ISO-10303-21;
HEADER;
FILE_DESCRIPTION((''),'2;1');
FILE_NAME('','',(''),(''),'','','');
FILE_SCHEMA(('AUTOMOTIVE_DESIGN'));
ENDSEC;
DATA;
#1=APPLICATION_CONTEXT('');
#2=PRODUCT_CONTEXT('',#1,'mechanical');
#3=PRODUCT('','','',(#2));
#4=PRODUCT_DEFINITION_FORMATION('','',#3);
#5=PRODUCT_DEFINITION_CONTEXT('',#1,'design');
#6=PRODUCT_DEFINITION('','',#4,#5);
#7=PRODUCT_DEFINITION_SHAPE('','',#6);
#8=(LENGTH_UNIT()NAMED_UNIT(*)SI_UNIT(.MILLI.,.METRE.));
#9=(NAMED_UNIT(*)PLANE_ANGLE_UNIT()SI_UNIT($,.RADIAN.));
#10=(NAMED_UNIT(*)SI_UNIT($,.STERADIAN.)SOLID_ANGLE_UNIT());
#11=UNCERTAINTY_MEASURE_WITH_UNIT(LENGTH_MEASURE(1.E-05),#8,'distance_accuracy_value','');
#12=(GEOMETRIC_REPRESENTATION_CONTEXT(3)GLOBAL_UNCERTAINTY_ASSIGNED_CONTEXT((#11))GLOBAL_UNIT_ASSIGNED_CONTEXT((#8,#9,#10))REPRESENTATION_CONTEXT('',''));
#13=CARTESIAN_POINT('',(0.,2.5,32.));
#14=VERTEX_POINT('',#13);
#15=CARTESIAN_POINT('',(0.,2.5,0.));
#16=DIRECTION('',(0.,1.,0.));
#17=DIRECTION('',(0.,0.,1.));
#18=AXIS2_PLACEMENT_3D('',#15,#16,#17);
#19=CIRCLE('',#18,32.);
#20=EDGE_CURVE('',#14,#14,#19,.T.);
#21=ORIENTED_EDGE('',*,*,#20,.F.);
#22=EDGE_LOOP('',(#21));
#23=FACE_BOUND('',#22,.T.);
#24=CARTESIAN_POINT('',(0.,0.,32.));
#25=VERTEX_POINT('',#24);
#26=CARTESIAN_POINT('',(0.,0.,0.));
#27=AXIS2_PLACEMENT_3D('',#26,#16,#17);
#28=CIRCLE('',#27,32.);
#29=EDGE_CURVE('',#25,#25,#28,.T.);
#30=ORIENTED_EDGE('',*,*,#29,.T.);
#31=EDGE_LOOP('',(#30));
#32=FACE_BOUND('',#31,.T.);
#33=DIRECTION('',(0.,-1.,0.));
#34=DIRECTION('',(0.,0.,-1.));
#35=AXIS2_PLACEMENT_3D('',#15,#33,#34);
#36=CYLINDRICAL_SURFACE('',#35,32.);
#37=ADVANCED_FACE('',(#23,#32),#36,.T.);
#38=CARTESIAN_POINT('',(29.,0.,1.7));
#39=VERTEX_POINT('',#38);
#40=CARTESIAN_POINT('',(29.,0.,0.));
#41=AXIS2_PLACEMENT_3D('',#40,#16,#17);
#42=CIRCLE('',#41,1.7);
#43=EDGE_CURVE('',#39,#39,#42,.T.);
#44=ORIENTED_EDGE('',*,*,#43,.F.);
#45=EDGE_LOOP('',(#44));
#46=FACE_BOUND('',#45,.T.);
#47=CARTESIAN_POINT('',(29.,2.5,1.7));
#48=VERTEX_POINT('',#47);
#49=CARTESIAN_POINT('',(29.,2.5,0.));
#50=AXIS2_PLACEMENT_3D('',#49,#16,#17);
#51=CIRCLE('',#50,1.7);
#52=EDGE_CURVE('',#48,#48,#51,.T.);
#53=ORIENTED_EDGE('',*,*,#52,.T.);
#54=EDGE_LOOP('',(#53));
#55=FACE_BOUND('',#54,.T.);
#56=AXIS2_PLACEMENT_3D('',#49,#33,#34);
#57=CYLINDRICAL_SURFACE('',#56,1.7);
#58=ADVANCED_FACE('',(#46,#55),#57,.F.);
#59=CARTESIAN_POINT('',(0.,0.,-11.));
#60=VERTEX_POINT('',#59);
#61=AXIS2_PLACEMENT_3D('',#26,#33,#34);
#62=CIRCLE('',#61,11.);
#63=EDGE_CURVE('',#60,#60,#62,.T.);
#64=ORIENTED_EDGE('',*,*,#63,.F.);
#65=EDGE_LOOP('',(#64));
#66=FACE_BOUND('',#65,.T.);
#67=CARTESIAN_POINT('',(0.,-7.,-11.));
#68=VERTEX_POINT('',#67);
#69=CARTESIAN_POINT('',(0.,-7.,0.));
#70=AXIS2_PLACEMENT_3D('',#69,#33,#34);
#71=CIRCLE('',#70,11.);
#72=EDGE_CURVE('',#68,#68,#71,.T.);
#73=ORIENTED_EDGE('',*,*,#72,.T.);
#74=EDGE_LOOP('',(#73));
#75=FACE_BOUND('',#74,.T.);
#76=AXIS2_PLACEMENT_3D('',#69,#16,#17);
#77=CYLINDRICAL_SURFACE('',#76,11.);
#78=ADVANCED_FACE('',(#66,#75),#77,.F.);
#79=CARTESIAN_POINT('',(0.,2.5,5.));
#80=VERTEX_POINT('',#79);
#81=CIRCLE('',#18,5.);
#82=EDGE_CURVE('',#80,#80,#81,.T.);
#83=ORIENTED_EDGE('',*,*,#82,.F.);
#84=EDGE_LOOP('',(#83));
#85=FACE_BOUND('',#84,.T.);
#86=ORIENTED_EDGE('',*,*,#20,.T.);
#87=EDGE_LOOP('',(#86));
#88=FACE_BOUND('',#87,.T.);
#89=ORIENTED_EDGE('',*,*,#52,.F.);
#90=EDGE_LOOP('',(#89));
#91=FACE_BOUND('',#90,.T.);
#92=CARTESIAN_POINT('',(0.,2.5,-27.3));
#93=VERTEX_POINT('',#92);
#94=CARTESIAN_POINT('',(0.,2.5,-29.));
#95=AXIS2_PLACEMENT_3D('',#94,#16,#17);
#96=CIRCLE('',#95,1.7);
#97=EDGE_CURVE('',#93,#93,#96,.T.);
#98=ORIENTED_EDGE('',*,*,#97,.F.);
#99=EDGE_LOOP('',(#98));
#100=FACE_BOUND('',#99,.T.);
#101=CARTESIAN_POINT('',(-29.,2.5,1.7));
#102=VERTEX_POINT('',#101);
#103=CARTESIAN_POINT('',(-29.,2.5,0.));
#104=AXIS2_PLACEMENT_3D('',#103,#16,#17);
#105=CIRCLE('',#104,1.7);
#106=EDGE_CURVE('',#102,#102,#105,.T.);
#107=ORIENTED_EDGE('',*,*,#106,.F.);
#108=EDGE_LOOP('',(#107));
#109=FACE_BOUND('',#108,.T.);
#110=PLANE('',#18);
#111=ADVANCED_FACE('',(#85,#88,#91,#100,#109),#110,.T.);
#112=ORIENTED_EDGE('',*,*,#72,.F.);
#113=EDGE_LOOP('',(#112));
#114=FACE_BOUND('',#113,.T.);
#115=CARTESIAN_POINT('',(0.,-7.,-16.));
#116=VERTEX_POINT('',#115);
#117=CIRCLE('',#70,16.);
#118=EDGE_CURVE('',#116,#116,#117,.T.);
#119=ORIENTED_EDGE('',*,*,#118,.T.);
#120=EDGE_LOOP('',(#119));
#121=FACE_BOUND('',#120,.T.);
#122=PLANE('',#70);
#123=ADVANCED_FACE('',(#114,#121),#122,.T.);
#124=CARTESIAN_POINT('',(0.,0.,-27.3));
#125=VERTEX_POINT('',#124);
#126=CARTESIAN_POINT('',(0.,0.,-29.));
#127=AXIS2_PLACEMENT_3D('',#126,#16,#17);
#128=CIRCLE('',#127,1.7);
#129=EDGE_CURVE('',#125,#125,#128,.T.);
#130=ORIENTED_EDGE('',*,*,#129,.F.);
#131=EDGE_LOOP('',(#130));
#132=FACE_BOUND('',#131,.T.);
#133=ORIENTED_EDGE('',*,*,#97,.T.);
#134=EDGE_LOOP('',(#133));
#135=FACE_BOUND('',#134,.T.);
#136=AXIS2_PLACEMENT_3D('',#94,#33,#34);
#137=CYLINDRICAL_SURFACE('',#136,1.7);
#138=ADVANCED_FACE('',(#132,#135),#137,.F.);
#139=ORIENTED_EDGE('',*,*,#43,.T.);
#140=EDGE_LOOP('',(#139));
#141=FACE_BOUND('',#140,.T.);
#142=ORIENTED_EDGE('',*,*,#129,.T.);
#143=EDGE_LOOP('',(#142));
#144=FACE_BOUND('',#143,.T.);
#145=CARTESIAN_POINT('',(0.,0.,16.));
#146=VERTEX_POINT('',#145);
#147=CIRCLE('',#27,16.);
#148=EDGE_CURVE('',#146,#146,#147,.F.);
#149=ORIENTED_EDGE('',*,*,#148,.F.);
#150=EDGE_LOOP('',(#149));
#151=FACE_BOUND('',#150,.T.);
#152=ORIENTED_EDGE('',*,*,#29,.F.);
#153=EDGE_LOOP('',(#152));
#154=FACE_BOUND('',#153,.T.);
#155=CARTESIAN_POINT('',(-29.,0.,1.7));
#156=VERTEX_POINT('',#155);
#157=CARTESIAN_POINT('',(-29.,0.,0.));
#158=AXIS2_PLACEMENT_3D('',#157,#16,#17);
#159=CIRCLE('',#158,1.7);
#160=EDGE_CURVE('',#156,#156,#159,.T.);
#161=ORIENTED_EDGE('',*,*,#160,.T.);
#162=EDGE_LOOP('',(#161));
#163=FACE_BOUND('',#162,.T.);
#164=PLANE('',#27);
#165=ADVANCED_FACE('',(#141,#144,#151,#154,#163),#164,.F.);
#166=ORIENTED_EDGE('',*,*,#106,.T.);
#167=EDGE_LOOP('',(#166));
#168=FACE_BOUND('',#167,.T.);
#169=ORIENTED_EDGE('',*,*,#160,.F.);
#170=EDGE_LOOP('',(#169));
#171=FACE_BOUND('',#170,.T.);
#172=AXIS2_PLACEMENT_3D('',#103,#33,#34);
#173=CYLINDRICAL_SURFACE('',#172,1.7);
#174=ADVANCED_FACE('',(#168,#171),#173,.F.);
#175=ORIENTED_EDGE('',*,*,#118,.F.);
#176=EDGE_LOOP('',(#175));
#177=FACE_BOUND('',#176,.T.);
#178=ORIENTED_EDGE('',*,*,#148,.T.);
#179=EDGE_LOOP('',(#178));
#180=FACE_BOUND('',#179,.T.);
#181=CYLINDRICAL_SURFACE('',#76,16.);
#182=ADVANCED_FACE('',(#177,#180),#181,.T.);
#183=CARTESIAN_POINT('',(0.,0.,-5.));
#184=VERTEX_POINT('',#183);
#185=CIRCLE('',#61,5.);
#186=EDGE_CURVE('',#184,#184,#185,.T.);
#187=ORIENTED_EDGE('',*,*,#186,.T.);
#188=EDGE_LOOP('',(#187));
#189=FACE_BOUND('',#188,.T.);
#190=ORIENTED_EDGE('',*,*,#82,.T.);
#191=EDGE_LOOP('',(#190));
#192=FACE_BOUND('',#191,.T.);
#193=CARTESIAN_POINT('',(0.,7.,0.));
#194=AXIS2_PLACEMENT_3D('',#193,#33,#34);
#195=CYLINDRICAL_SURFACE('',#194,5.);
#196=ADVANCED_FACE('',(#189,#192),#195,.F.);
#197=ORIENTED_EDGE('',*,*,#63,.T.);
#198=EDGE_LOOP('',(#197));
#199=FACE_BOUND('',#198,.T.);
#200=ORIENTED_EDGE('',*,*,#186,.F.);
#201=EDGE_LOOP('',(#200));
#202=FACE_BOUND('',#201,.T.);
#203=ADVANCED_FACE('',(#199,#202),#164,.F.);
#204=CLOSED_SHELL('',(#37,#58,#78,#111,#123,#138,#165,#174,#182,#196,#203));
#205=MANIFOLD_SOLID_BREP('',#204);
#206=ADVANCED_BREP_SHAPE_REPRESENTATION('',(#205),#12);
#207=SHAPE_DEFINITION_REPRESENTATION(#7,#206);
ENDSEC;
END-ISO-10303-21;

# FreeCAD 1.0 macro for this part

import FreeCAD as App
import Part
import Sketcher

V = App.Vector

doc = App.newDocument("Part")
body = doc.addObject("PartDesign::Body", "Body")

sketch1 = body.newObject("Sketcher::SketchObject", "Sketch")
sketch1.AttachmentSupport = (doc.getObject("XZ_Plane"), [""])
sketch1.MapMode = "FlatFace"
sketch1.addGeometry([
    Part.Circle(V(0, 0, 0), V(0, 0, 1), 32),
    Part.Circle(V(0, -29, 0), V(0, 0, 1), 1.7),
    Part.Circle(V(-29, 0, 0), V(0, 0, 1), 1.7),
    Part.Circle(V(29, 0, 0), V(0, 0, 1), 1.7),
], False)
sketch1.addConstraint([
    Sketcher.Constraint("Coincident", 0, 3, -1, 1),
    Sketcher.Constraint("Equal", 1, 2),
    Sketcher.Constraint("Equal", 2, 3),
    Sketcher.Constraint("Symmetric", 2, 3, 3, 3, -1, 1),
    Sketcher.Constraint("PointOnObject", 1, 3, -2),
    Sketcher.Constraint("PointOnObject", 2, 3, -1),
    Sketcher.Constraint("Diameter", 0, 64.0),
    Sketcher.Constraint("Diameter", 1, 3.4),
    Sketcher.Constraint("DistanceY", 1, 3, -1, 1, 29.0),
    Sketcher.Constraint("DistanceX", 2, 3, -1, 1, 29.0),
])
pad1 = body.newObject("PartDesign::Pad", "Pad")
pad1.Profile = sketch1
pad1.Length = 2.5
pad1.Reversed = True

sketch2 = body.newObject("Sketcher::SketchObject", "Sketch001")
sketch2.AttachmentSupport = (doc.getObject("XZ_Plane"), [""])
sketch2.MapMode = "FlatFace"
sketch2.addGeometry([
    Part.Circle(V(0, 0, 0), V(0, 0, 1), 16),
    Part.Circle(V(0, 0, 0), V(0, 0, 1), 11),
], False)
sketch2.addConstraint([
    Sketcher.Constraint("Coincident", 0, 3, -1, 1),
    Sketcher.Constraint("Coincident", 1, 3, -1, 1),
    Sketcher.Constraint("Diameter", 0, 32.0),
    Sketcher.Constraint("Diameter", 1, 22.0),
])
pad2 = body.newObject("PartDesign::Pad", "Pad001")
pad2.Profile = sketch2
pad2.Length = 7

sketch3 = body.newObject("Sketcher::SketchObject", "Sketch002")
sketch3.AttachmentSupport = (doc.getObject("XZ_Plane"), [""])
sketch3.MapMode = "FlatFace"
sketch3.addGeometry(Part.Circle(V(0, 0, 0), V(0, 0, 1), 5), False)
sketch3.addConstraint([
    Sketcher.Constraint("Coincident", 0, 3, -1, 1),
    Sketcher.Constraint("Diameter", 0, 10.0),
])
pocket1 = body.newObject("PartDesign::Pocket", "Pocket")
pocket1.Profile = sketch3
pocket1.Length = 7

doc.recompute()
